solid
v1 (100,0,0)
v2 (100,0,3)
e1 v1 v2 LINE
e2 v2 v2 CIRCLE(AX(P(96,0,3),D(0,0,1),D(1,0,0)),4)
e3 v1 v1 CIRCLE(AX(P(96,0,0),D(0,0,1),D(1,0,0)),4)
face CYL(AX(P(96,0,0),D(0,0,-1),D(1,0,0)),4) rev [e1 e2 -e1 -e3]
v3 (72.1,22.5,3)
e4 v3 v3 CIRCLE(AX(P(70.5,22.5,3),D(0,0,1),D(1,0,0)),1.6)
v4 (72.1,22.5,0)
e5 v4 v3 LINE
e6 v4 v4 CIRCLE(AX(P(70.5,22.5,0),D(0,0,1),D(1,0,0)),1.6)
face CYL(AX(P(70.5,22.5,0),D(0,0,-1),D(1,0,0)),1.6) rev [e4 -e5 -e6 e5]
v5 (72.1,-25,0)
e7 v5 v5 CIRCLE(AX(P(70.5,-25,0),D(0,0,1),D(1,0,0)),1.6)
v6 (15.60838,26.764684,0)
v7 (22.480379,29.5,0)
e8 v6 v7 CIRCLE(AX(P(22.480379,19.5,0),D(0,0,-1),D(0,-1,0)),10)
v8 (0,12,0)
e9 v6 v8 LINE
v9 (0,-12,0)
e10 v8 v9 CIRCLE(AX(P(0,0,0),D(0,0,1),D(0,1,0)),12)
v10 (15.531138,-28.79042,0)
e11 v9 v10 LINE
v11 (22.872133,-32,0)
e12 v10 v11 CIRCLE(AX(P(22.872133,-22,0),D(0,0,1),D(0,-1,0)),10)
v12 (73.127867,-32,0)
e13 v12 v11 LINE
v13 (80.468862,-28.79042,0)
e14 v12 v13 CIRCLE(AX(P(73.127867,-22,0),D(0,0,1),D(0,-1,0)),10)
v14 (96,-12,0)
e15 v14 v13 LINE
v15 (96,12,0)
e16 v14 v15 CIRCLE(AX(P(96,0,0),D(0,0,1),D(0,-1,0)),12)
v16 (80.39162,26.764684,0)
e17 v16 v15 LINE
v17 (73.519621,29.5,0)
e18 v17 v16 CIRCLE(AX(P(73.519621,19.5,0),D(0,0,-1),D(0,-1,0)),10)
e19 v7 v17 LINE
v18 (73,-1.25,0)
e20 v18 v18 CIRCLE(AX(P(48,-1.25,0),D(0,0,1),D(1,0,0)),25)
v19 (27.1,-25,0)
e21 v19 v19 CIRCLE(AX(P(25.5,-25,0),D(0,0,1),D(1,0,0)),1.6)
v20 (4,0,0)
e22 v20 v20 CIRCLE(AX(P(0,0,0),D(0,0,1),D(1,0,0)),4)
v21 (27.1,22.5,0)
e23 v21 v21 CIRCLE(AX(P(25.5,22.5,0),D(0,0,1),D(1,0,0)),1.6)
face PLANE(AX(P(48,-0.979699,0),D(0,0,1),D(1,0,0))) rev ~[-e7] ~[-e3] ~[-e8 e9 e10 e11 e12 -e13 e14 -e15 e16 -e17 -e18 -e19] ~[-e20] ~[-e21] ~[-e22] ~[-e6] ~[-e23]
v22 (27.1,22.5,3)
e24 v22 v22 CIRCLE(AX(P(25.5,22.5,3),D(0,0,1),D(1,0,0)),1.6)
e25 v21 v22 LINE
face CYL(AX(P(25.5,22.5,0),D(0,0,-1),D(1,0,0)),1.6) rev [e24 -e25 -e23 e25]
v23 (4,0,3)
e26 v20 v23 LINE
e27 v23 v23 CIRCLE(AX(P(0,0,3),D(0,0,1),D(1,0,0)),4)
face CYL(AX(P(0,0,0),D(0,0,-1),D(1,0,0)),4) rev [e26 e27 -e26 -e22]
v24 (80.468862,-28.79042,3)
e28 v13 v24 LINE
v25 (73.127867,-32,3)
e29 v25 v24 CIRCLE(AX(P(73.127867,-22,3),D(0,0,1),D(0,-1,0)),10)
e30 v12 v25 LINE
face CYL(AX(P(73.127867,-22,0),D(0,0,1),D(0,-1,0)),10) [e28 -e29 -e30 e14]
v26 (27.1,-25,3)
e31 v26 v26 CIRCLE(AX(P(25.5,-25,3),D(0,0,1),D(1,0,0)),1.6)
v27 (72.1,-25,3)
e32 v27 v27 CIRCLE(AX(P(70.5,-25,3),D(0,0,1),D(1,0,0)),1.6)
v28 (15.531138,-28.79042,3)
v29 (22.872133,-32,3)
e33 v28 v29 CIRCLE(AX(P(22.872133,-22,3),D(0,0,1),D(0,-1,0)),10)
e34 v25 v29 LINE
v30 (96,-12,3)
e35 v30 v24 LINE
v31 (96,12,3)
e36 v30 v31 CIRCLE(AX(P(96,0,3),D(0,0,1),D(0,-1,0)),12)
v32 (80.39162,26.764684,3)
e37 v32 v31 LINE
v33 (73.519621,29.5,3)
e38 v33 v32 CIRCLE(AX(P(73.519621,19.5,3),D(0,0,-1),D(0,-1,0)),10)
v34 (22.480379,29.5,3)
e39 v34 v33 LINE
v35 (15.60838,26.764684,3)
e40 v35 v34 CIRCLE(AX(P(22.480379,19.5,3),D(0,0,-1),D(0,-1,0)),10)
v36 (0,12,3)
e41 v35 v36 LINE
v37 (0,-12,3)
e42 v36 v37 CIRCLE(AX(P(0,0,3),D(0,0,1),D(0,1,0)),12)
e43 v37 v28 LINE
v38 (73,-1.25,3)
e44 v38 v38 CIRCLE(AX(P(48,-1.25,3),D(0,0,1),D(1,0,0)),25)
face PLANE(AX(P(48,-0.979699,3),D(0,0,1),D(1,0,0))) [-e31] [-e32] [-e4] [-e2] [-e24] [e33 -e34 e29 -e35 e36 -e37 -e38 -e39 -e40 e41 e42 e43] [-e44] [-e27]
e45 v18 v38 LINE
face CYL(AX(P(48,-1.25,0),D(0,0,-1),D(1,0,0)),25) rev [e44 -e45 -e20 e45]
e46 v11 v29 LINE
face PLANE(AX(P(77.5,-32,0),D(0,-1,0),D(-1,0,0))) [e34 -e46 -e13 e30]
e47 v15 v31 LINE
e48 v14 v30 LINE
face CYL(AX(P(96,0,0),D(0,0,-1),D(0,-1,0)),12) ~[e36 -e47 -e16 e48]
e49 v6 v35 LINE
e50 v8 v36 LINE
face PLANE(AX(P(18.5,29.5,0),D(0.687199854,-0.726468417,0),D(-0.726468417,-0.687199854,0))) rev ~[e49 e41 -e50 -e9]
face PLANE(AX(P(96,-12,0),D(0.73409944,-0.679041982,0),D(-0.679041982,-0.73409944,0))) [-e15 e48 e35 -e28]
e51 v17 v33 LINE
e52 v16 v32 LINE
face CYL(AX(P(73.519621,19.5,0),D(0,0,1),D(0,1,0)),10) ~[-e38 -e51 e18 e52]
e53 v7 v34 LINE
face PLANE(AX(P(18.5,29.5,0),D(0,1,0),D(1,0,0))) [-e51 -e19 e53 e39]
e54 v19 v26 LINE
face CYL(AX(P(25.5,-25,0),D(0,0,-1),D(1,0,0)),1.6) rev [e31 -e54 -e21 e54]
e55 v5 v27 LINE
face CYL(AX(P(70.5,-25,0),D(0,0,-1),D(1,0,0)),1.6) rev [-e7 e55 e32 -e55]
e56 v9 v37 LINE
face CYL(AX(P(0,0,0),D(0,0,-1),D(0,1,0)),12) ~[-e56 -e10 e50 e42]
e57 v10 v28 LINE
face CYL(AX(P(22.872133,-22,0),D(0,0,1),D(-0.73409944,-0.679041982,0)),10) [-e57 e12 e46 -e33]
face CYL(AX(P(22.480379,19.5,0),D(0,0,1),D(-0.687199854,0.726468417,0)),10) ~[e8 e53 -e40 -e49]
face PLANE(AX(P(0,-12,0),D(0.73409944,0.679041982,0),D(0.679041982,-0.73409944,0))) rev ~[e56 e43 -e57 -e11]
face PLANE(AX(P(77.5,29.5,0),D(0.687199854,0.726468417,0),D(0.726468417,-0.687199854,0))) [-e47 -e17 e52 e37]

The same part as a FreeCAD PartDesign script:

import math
import FreeCAD as App
import Part
import Sketcher

V = App.Vector


def edges_at(feature, points):
    """Names of the edges that pass closest to the given points."""
    edges = feature.Shape.Edges
    near = lambda p: min(range(len(edges)), key=lambda i: edges[i].distToShape(Part.Vertex(*p))[0])
    return sorted({f"Edge{near(p) + 1}" for p in points})

doc = App.newDocument("Part")
body = doc.addObject("PartDesign::Body", "Body")

# Sketch on XY plane
sketch1 = body.newObject("Sketcher::SketchObject", "Sketch")
sketch1.AttachmentSupport = (doc.getObject("XY_Plane"), [""])
sketch1.MapMode = "FlatFace"
sketch1.addGeometry([
    Part.ArcOfCircle(Part.Circle(V(0, 0, 0), V(0, 0, 1), 12), math.radians(90), math.radians(270)),  # 0
    Part.LineSegment(V(0, -12, 0), V(18.5, -32, 0)),  # 1
    Part.LineSegment(V(18.5, -32, 0), V(77.5, -32, 0)),  # 2
    Part.LineSegment(V(77.5, -32, 0), V(96, -12, 0)),  # 3
    Part.ArcOfCircle(Part.Circle(V(96, 0, 0), V(0, 0, 1), 12), math.radians(-90), math.radians(90)),  # 4
    Part.LineSegment(V(96, 12, 0), V(77.5, 29.5, 0)),  # 5
    Part.LineSegment(V(77.5, 29.5, 0), V(18.5, 29.5, 0)),  # 6
    Part.LineSegment(V(18.5, 29.5, 0), V(0, 12, 0)),  # 7
    Part.Circle(V(25.5, -25, 0), V(0, 0, 1), 1.6),  # 8
    Part.Circle(V(70.5, -25, 0), V(0, 0, 1), 1.6),  # 9
    Part.Circle(V(0, 0, 0), V(0, 0, 1), 4),  # 10
    Part.Circle(V(25.5, 22.5, 0), V(0, 0, 1), 1.6),  # 11
    Part.Circle(V(48, -1.2, 0), V(0, 0, 1), 25),  # 12
    Part.Circle(V(96, 0, 0), V(0, 0, 1), 4),  # 13
    Part.Circle(V(70.5, 22.5, 0), V(0, 0, 1), 1.6),  # 14
], False)
sketch1.addConstraint([
    Sketcher.Constraint("Coincident", 0, 2, 1, 1),
    Sketcher.Constraint("Coincident", 1, 2, 2, 1),
    Sketcher.Constraint("Coincident", 2, 2, 3, 1),
    Sketcher.Constraint("Coincident", 3, 2, 4, 1),
    Sketcher.Constraint("Coincident", 4, 2, 5, 1),
    Sketcher.Constraint("Coincident", 5, 2, 6, 1),
    Sketcher.Constraint("Coincident", 6, 2, 7, 1),
    Sketcher.Constraint("Coincident", 7, 2, 0, 1),
    Sketcher.Constraint("Horizontal", 2),
    Sketcher.Constraint("Horizontal", 6),
    Sketcher.Constraint("Coincident", 0, 3, -1, 1),
    Sketcher.Constraint("Coincident", 10, 3, -1, 1),
    Sketcher.Constraint("Coincident", 13, 3, 4, 3),
    Sketcher.Constraint("Equal", 0, 4),
    Sketcher.Constraint("Equal", 8, 9),
    Sketcher.Constraint("Equal", 9, 11),
    Sketcher.Constraint("Equal", 10, 13),
    Sketcher.Constraint("Equal", 11, 14),
    Sketcher.Constraint("Symmetric", 3, 2, 4, 2, -1),
    Sketcher.Constraint("PointOnObject", 0, 2, -2),
    Sketcher.Constraint("PointOnObject", 7, 2, -2),
    Sketcher.Constraint("Horizontal", 8, 3, 9, 3),
    Sketcher.Constraint("Horizontal", 11, 3, 14, 3),
    Sketcher.Constraint("Vertical", 8, 3, 11, 3),
    Sketcher.Constraint("Vertical", 9, 3, 14, 3),
    Sketcher.Constraint("Vertical", 13, 3, 3, 2),
    Sketcher.Constraint("Vertical", 2, 2, 5, 2),
    Sketcher.Constraint("Vertical", 1, 2, 6, 2),
    Sketcher.Constraint("Equal", 1, 3),
    Sketcher.Constraint("Diameter", 10, 8.0),
    Sketcher.Constraint("Diameter", 12, 50.0),
    Sketcher.Constraint("Radius", 0, 12.0),
    Sketcher.Constraint("Diameter", 8, 3.2),
    Sketcher.Constraint("DistanceX", 2, 1, 2, 2, 59.0),
    Sketcher.Constraint("DistanceX", -1, 1, 4, 3, 96.0),
    Sketcher.Constraint("DistanceY", 8, 3, -1, 1, 25.0),
    Sketcher.Constraint("DistanceX", -1, 1, 12, 3, 48.0),
    Sketcher.Constraint("DistanceY", 1, 2, -1, 1, 32.0),
    Sketcher.Constraint("DistanceX", 8, 3, 9, 3, 45.0),
    Sketcher.Constraint("DistanceX", 1, 2, 8, 3, 7.0),
    Sketcher.Constraint("DistanceY", 14, 3, 5, 2, 7.0),
    Sketcher.Constraint("DistanceY", -1, 1, 11, 3, 22.5),
    Sketcher.Constraint("DistanceY", 12, 3, -1, 1, 1.25),
])
pad1 = body.newObject("PartDesign::Pad", "Pad")
pad1.Profile = sketch1
pad1.Length = 3
doc.recompute()

fillet = body.newObject("PartDesign::Fillet", "Fillet")
fillet.Base = (pad1, edges_at(pad1, [
    (77.5, -32, 1.5),
    (18.5, -32, 1.5),
    (77.5, 29.5, 1.5),
    (18.5, 29.5, 1.5),
]))
fillet.Radius = 10

doc.recompute()
